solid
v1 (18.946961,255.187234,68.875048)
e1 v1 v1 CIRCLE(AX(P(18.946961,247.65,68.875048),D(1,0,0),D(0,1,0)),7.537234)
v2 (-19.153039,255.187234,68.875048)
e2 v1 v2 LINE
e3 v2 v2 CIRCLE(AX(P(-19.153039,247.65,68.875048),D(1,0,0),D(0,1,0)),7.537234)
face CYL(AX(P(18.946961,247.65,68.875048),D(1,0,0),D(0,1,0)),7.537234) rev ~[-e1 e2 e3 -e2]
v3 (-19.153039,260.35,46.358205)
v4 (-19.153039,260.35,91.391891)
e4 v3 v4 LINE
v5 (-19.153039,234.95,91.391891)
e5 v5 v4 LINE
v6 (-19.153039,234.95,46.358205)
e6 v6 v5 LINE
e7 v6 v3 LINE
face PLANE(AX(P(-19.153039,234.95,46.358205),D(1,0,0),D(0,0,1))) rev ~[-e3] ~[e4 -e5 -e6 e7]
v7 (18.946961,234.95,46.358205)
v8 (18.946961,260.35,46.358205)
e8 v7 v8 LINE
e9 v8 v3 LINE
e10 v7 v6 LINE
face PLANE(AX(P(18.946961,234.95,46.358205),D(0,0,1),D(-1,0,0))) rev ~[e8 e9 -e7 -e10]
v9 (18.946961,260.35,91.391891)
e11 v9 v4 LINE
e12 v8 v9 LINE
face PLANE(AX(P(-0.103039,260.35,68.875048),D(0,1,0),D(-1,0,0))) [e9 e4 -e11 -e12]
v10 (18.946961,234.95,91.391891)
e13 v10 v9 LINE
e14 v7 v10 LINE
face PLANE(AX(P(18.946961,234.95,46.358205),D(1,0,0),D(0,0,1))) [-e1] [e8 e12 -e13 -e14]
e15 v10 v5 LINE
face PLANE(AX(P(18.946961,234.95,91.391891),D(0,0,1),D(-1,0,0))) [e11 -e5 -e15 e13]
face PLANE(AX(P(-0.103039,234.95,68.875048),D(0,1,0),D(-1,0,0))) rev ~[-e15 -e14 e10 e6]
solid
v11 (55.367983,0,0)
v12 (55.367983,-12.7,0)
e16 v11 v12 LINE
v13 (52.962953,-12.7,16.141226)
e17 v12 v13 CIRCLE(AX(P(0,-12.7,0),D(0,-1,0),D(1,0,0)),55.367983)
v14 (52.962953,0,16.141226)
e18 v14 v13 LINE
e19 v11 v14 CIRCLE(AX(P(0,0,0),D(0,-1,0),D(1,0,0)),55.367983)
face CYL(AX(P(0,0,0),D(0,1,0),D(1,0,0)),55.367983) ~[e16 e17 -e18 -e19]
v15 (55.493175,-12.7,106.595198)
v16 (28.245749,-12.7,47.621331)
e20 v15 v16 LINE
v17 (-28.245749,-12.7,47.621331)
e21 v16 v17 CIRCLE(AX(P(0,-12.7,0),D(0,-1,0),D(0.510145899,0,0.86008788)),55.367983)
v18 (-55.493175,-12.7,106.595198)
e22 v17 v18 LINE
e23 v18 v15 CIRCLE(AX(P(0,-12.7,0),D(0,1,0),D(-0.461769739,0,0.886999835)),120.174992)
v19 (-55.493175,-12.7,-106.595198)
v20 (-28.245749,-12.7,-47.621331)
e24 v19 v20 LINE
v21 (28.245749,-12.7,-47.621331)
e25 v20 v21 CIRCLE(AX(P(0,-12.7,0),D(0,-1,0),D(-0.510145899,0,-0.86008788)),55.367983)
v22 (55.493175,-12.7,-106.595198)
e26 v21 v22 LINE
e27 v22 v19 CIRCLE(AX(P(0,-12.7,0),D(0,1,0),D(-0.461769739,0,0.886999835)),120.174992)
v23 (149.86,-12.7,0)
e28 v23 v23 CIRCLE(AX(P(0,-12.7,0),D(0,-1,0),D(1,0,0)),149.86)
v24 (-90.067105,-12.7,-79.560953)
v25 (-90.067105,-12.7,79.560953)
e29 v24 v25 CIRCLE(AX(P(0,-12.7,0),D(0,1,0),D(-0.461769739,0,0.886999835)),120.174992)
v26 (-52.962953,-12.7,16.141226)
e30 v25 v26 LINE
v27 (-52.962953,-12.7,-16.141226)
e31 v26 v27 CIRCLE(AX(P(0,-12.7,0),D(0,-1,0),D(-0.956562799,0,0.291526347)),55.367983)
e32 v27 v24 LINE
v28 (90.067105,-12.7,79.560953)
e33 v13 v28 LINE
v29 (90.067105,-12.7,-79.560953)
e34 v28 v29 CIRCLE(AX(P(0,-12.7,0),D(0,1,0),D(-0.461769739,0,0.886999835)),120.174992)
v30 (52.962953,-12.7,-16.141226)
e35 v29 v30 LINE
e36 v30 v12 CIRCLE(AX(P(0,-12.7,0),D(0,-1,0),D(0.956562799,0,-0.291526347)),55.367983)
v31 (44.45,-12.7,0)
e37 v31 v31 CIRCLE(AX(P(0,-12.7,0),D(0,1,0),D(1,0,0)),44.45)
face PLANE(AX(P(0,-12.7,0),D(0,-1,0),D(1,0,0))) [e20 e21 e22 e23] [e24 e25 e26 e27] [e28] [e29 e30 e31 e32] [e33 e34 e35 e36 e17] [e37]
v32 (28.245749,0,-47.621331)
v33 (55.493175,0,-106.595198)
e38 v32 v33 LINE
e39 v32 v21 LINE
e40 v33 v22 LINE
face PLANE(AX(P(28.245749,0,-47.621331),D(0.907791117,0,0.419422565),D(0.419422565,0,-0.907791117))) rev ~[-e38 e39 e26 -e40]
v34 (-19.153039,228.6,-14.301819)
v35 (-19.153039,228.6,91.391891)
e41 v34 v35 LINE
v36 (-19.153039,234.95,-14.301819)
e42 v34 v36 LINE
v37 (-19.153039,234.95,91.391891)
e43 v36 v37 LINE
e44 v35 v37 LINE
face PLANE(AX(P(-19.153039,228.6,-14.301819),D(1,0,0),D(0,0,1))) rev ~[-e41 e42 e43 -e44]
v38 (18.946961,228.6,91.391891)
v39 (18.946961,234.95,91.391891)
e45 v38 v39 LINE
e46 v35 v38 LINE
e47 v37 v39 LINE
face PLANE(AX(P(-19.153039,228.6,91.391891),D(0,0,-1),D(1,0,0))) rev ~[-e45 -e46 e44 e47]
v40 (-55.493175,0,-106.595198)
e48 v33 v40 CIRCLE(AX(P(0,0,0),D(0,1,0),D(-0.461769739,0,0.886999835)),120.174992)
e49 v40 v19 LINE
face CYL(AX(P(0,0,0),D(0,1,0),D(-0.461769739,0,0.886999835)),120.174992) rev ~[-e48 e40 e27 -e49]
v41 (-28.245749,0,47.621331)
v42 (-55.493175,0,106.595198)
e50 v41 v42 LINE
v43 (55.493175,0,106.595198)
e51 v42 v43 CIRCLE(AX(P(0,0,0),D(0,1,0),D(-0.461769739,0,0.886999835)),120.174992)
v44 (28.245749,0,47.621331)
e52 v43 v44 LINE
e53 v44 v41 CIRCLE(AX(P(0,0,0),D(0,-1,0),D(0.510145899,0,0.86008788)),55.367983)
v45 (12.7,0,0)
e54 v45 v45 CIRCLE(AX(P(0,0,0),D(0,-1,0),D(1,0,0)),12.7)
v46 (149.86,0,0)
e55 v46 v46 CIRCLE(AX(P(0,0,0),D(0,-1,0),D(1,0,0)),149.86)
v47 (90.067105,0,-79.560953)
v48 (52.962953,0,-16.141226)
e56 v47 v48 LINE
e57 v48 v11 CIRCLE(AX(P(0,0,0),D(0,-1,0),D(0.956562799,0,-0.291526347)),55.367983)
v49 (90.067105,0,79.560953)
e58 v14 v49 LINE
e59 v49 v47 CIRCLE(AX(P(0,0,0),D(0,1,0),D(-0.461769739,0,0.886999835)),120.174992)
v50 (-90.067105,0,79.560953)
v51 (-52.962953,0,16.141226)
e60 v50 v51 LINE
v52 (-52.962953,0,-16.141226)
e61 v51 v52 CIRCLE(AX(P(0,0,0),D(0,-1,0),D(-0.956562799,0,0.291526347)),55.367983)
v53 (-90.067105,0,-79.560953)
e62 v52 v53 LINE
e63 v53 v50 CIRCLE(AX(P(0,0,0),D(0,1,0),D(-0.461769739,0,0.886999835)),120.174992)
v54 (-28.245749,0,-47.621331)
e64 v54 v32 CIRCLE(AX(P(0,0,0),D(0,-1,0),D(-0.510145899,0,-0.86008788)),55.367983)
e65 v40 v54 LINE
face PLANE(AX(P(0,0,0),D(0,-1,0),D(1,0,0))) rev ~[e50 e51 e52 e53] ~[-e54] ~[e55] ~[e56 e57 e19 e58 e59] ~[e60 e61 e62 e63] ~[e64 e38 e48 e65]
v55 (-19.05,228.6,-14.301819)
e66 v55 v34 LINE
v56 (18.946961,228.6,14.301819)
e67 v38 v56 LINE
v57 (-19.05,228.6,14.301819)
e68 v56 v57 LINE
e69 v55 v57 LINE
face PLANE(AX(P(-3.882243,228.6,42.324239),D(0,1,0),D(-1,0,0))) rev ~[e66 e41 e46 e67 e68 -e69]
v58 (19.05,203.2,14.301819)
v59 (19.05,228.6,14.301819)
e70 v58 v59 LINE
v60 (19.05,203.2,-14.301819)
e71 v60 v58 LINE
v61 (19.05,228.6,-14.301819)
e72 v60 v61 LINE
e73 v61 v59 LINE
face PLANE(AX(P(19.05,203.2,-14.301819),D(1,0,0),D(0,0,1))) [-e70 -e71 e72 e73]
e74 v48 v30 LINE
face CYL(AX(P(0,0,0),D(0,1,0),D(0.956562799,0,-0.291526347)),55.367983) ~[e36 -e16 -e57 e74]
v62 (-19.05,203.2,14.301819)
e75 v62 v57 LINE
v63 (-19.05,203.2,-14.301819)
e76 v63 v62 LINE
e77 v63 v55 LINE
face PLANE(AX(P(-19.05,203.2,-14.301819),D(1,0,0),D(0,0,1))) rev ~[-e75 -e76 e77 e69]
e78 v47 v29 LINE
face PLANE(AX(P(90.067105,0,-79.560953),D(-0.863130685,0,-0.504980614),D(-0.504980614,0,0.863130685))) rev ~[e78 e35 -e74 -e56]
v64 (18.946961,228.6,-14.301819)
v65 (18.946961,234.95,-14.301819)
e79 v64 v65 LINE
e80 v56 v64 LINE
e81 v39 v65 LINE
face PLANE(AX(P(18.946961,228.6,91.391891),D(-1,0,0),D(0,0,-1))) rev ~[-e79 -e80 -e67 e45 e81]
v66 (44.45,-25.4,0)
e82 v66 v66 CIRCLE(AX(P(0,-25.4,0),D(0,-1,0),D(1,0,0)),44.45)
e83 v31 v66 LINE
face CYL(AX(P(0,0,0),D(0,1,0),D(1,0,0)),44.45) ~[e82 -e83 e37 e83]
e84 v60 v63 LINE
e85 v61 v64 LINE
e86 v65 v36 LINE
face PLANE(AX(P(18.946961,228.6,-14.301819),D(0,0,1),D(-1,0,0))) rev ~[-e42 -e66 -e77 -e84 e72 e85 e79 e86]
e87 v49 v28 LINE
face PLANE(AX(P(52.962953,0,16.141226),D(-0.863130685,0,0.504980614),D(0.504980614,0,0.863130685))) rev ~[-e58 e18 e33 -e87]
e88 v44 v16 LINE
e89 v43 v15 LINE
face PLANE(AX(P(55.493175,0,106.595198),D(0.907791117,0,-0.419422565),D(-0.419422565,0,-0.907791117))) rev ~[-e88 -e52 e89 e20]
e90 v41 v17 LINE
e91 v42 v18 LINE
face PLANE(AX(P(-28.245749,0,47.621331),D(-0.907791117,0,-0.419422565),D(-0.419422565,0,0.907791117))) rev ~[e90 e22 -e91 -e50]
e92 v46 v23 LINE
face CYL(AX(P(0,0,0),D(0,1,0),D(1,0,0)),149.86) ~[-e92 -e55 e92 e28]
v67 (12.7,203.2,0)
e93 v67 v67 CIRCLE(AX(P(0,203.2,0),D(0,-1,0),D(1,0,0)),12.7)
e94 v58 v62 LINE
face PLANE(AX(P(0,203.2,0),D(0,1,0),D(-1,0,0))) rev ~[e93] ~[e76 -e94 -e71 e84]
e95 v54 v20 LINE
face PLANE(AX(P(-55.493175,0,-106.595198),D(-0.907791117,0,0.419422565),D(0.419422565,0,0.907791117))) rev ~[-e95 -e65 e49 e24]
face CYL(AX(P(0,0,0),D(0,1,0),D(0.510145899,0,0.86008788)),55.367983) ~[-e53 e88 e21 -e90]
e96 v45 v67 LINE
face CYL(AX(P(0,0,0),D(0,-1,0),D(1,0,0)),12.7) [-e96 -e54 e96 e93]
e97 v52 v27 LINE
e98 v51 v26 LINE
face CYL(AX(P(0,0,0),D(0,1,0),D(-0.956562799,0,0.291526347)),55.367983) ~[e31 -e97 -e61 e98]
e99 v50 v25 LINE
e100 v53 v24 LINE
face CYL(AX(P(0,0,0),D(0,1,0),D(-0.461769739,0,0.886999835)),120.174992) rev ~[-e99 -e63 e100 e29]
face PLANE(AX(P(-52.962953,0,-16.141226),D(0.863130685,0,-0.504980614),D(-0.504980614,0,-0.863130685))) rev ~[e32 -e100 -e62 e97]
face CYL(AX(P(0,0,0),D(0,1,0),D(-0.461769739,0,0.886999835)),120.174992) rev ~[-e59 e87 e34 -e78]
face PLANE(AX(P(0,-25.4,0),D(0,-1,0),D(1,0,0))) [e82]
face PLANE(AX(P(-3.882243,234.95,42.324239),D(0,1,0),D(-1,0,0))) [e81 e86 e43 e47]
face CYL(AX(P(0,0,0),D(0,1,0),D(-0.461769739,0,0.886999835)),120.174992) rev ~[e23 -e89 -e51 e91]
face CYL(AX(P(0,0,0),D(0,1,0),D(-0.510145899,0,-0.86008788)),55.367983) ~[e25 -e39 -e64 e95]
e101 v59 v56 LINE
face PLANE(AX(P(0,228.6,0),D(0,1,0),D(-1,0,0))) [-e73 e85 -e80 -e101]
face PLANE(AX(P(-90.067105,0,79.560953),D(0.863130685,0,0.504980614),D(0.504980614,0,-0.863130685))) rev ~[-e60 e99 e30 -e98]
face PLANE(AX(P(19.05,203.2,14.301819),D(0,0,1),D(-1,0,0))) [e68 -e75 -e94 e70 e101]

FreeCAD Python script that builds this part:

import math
import FreeCAD as App
import Part
import Sketcher
Q = App.Units.Quantity


def add_polygon(sketch, points):
    """Adds a closed chain of lines whose ends are joined by coincident constraints."""
    first, n = sketch.GeometryCount, len(points)
    for a, b in zip(points, points[1:] + points[:1]):
        sketch.addGeometry(Part.LineSegment(App.Vector(*a, 0), App.Vector(*b, 0)), False)
    for i in range(n):
        sketch.addConstraint(Sketcher.Constraint("Coincident", first + i, 2, first + (i + 1) % n, 1))

doc = App.newDocument("Part")
params = doc.addObject("Spreadsheet::Sheet", "Params")
for row, (alias, value) in enumerate([
    ("sketch1_diameter", "11.8 in"),
    ("pad1_length", "0.5 in"),
    ("sketch2_diameter", "3.5 in"),
    ("pad2_length", "1 in"),
    ("sketch3_diameter", "1 in"),
    ("pad3_length", "8 in"),
    ("sketch4_width", "1.5 in"),
    ("pad4_length", "1 in"),
    ("sketch5_width", "1.5 in"),
    ("pad5_length", "0.25 in"),
    ("sketch6_width", "1.5 in"),
    ("pad6_length", "1 in"),
    ("pocket1_length", "1.74 in"),
], start=1):
    params.set(f"A{row}", alias)
    params.set(f"B{row}", "=" + value)
    params.setAlias(f"B{row}", alias)

body = doc.addObject("PartDesign::Body", "Body")

# Sketch on XZ plane
sketch1 = doc.addObject("Sketcher::SketchObject", "Sketch")
body.addObject(sketch1)
sketch1.AttachmentSupport = (doc.XZ_Plane, [""])
sketch1.MapMode = "FlatFace"
sketch1.addGeometry(Part.Circle(App.Vector(0, 0, 0), App.Vector(0, 0, 1), 149.86), False)
sketch1.addGeometry(Part.LineSegment(App.Vector(-90.067105, 79.560953, 0), App.Vector(-52.962953, 16.141226, 0)), False)
sketch1.addGeometry(Part.ArcOfCircle(Part.Circle(App.Vector(0, 0, 0), App.Vector(0, 0, 1), 55.367983), math.radians(163.050642), math.radians(196.949358)), False)
sketch1.addGeometry(Part.LineSegment(App.Vector(-52.962953, -16.141226, 0), App.Vector(-90.067105, -79.560953, 0)), False)
sketch1.addGeometry(Part.ArcOfCircle(Part.Circle(App.Vector(0, 0, 0), App.Vector(0, 0, 1), 120.174992), math.radians(138.544167), math.radians(221.455833)), False)
sketch1.addGeometry(Part.ArcOfCircle(Part.Circle(App.Vector(0, 0, 0), App.Vector(0, 0, 1), 55.367983), math.radians(-120.673549), math.radians(-59.326451)), False)
sketch1.addGeometry(Part.LineSegment(App.Vector(28.245749, -47.621331, 0), App.Vector(55.493175, -106.595198, 0)), False)
sketch1.addGeometry(Part.ArcOfCircle(Part.Circle(App.Vector(0, 0, 0), App.Vector(0, 0, 1), 120.174992), math.radians(-117.501365), math.radians(-62.498635)), False)
sketch1.addGeometry(Part.LineSegment(App.Vector(-55.493175, -106.595198, 0), App.Vector(-28.245749, -47.621331, 0)), False)
sketch1.addGeometry(Part.ArcOfCircle(Part.Circle(App.Vector(0, 0, 0), App.Vector(0, 0, 1), 55.367983), math.radians(-16.949358), math.radians(0)), False)
sketch1.addGeometry(Part.ArcOfCircle(Part.Circle(App.Vector(0, 0, 0), App.Vector(0, 0, 1), 55.367983), math.radians(0), math.radians(16.949358)), False)
sketch1.addGeometry(Part.LineSegment(App.Vector(52.962953, 16.141226, 0), App.Vector(90.067105, 79.560953, 0)), False)
sketch1.addGeometry(Part.ArcOfCircle(Part.Circle(App.Vector(0, 0, 0), App.Vector(0, 0, 1), 120.174992), math.radians(-41.455833), math.radians(41.455833)), False)
sketch1.addGeometry(Part.LineSegment(App.Vector(90.067105, -79.560953, 0), App.Vector(52.962953, -16.141226, 0)), False)
sketch1.addGeometry(Part.ArcOfCircle(Part.Circle(App.Vector(0, 0, 0), App.Vector(0, 0, 1), 55.367983), math.radians(59.326451), math.radians(120.673549)), False)
sketch1.addGeometry(Part.LineSegment(App.Vector(-28.245749, 47.621331, 0), App.Vector(-55.493175, 106.595198, 0)), False)
sketch1.addGeometry(Part.ArcOfCircle(Part.Circle(App.Vector(0, 0, 0), App.Vector(0, 0, 1), 120.174992), math.radians(62.498635), math.radians(117.501365)), False)
sketch1.addGeometry(Part.LineSegment(App.Vector(55.493175, 106.595198, 0), App.Vector(28.245749, 47.621331, 0)), False)
sketch1.addGeometry(Part.Circle(App.Vector(0, 0, 0), App.Vector(0, 0, 1), 26.648737), False)
sketch1.addConstraint(Sketcher.Constraint("Coincident", 1, 2, 2, 1))
sketch1.addConstraint(Sketcher.Constraint("Coincident", 2, 2, 3, 1))
sketch1.addConstraint(Sketcher.Constraint("Coincident", 3, 2, 4, 2))
sketch1.addConstraint(Sketcher.Constraint("Coincident", 4, 1, 1, 1))
sketch1.addConstraint(Sketcher.Constraint("Coincident", 5, 2, 6, 1))
sketch1.addConstraint(Sketcher.Constraint("Coincident", 6, 2, 7, 2))
sketch1.addConstraint(Sketcher.Constraint("Coincident", 7, 1, 8, 1))
sketch1.addConstraint(Sketcher.Constraint("Coincident", 8, 2, 5, 1))
sketch1.addConstraint(Sketcher.Constraint("Tangent", 9, 2, 10, 1))
sketch1.addConstraint(Sketcher.Constraint("Coincident", 10, 2, 11, 1))
sketch1.addConstraint(Sketcher.Constraint("Coincident", 11, 2, 12, 2))
sketch1.addConstraint(Sketcher.Constraint("Coincident", 12, 1, 13, 1))
sketch1.addConstraint(Sketcher.Constraint("Coincident", 13, 2, 9, 1))
sketch1.addConstraint(Sketcher.Constraint("Coincident", 14, 2, 15, 1))
sketch1.addConstraint(Sketcher.Constraint("Coincident", 15, 2, 16, 2))
sketch1.addConstraint(Sketcher.Constraint("Coincident", 16, 1, 17, 1))
sketch1.addConstraint(Sketcher.Constraint("Coincident", 17, 2, 14, 1))
sketch1.addConstraint(Sketcher.Constraint("Coincident", 0, 3, -1, 1))
sketch1.addConstraint(Sketcher.Constraint("Coincident", 2, 3, -1, 1))
sketch1.addConstraint(Sketcher.Constraint("Coincident", 4, 3, -1, 1))
sketch1.addConstraint(Sketcher.Constraint("Coincident", 5, 3, -1, 1))
sketch1.addConstraint(Sketcher.Constraint("Coincident", 7, 3, -1, 1))
sketch1.addConstraint(Sketcher.Constraint("Coincident", 9, 3, -1, 1))
sketch1.addConstraint(Sketcher.Constraint("Coincident", 12, 3, -1, 1))
sketch1.addConstraint(Sketcher.Constraint("Coincident", 14, 3, -1, 1))
sketch1.addConstraint(Sketcher.Constraint("Coincident", 16, 3, -1, 1))
sketch1.addConstraint(Sketcher.Constraint("Coincident", 18, 3, -1, 1))
sketch1.addConstraint(Sketcher.Constraint("Equal", 2, 5))
sketch1.addConstraint(Sketcher.Constraint("Equal", 4, 7))
sketch1.addConstraint(Sketcher.Constraint("Equal", 5, 9))
sketch1.addConstraint(Sketcher.Constraint("Equal", 9, 10))
sketch1.addConstraint(Sketcher.Constraint("Equal", 7, 12))
sketch1.addConstraint(Sketcher.Constraint("Equal", 10, 14))
sketch1.addConstraint(Sketcher.Constraint("Equal", 12, 16))
sketch1.addConstraint(Sketcher.Constraint("PointOnObject", 9, 2, -1))
sketch1.addConstraint(Sketcher.Constraint("Parallel", 3, 11))
sketch1.addConstraint(Sketcher.Constraint("Parallel", 1, 13))
sketch1.addConstraint(Sketcher.Constraint("Parallel", 6, 15))
sketch1.addConstraint(Sketcher.Constraint("Parallel", 8, 17))
sketch1.addConstraint(Sketcher.Constraint("Horizontal", 6, 2, 7, 1))
sketch1.addConstraint(Sketcher.Constraint("Horizontal", 5, 2, 8, 2))
sketch1.addConstraint(Sketcher.Constraint("Horizontal", 1, 2, 10, 2))
sketch1.addConstraint(Sketcher.Constraint("Horizontal", 4, 1, 11, 2))
sketch1.addConstraint(Sketcher.Constraint("Horizontal", 3, 2, 12, 1))
sketch1.addConstraint(Sketcher.Constraint("Horizontal", 15, 2, 16, 1))
sketch1.addConstraint(Sketcher.Constraint("Vertical", 1, 2, 2, 2))
sketch1.addConstraint(Sketcher.Constraint("Vertical", 8, 2, 14, 2))
sketch1.addConstraint(Sketcher.Constraint("Diameter", 0, Q("11.8 in")))
sketch1.addConstraint(Sketcher.Constraint("Radius", 4, 120.174992))
sketch1.addConstraint(Sketcher.Constraint("Diameter", 18, 53.297473))
sketch1.addConstraint(Sketcher.Constraint("Radius", 2, 55.367983))
sketch1.addConstraint(Sketcher.Constraint("Distance", 1, 73.47639))
sketch1.addConstraint(Sketcher.Constraint("DistanceX", -1, 1, 5, 2, 28.245749))
sketch1.addConstraint(Sketcher.Constraint("DistanceY", 2, 2, 1, 2, 32.282452))
sketch1.addConstraint(Sketcher.Constraint("DistanceX", 3, 2, 7, 1, 34.573931))
sketch1.setExpression("Constraints[47]", "Params.sketch1_diameter")
pad1 = doc.addObject("PartDesign::Pad", "Pad")
body.addObject(pad1)
pad1.Profile = sketch1
pad1.setExpression("Length", "Params.pad1_length")

# Sketch on XZ plane
sketch2 = doc.addObject("Sketcher::SketchObject", "Sketch001")
body.addObject(sketch2)
sketch2.AttachmentSupport = (doc.XZ_Plane, [""])
sketch2.MapMode = "FlatFace"
sketch2.addGeometry(Part.Circle(App.Vector(0, 0, 0), App.Vector(0, 0, 1), 44.45), False)
sketch2.addConstraint(Sketcher.Constraint("Coincident", 0, 3, -1, 1))
sketch2.addConstraint(Sketcher.Constraint("Diameter", 0, Q("3.5 in")))
sketch2.setExpression("Constraints[1]", "Params.sketch2_diameter")
pad2 = doc.addObject("PartDesign::Pad", "Pad001")
body.addObject(pad2)
pad2.Profile = sketch2
pad2.setExpression("Length", "Params.pad2_length")

# Sketch on XZ plane
sketch3 = doc.addObject("Sketcher::SketchObject", "Sketch002")
body.addObject(sketch3)
sketch3.AttachmentSupport = (doc.XZ_Plane, [""])
sketch3.MapMode = "FlatFace"
sketch3.addGeometry(Part.Circle(App.Vector(0, 0, 0), App.Vector(0, 0, 1), 12.7), False)
sketch3.addConstraint(Sketcher.Constraint("Coincident", 0, 3, -1, 1))
sketch3.addConstraint(Sketcher.Constraint("Diameter", 0, Q("1 in")))
sketch3.setExpression("Constraints[1]", "Params.sketch3_diameter")
pad3 = doc.addObject("PartDesign::Pad", "Pad002")
body.addObject(pad3)
pad3.Profile = sketch3
pad3.setExpression("Length", "Params.pad3_length")
pad3.Reversed = True

# Sketch on XZ plane
sketch4 = doc.addObject("Sketcher::SketchObject", "Sketch003")
body.addObject(sketch4)
sketch4.AttachmentSupport = (doc.XZ_Plane, [""])
sketch4.MapMode = "FlatFace"
sketch4.AttachmentOffset = App.Placement(App.Vector(0, 0, -8 * 25.4), App.Rotation())
add_polygon(sketch4, [(19.05, 14.301819), (19.05, -14.301819), (-19.05, -14.301819), (-19.05, 14.301819)])  # lines 0-3
sketch4.addConstraint(Sketcher.Constraint("Vertical", 0))
sketch4.addConstraint(Sketcher.Constraint("Horizontal", 1))
sketch4.addConstraint(Sketcher.Constraint("Vertical", 2))
sketch4.addConstraint(Sketcher.Constraint("Horizontal", 3))
sketch4.addConstraint(Sketcher.Constraint("Symmetric", 0, 2, 2, 2, -1, 1))
sketch4.addConstraint(Sketcher.Constraint("DistanceX", 1, 2, 1, 1, Q("1.5 in")))
sketch4.addConstraint(Sketcher.Constraint("DistanceY", 0, 2, 0, 1, 28.603639))
sketch4.setExpression("Constraints[9]", "Params.sketch4_width")
pad4 = doc.addObject("PartDesign::Pad", "Pad003")
body.addObject(pad4)
pad4.Profile = sketch4
pad4.setExpression("Length", "Params.pad4_length")
pad4.Reversed = True

# Sketch on XZ plane
sketch5 = doc.addObject("Sketcher::SketchObject", "Sketch004")
body.addObject(sketch5)
sketch5.AttachmentSupport = (doc.XZ_Plane, [""])
sketch5.MapMode = "FlatFace"
sketch5.AttachmentOffset = App.Placement(App.Vector(0, 0, -9 * 25.4), App.Rotation())
add_polygon(sketch5, [(-19.153039, -14.301819), (-19.153039, 91.391891), (18.946961, 91.391891), (18.946961, -14.301819)])  # lines 0-3
sketch5.addConstraint(Sketcher.Constraint("Vertical", 0))
sketch5.addConstraint(Sketcher.Constraint("Horizontal", 1))
sketch5.addConstraint(Sketcher.Constraint("Vertical", 2))
sketch5.addConstraint(Sketcher.Constraint("Horizontal", 3))
sketch5.addConstraint(Sketcher.Constraint("DistanceX", 1, 1, 1, 2, Q("1.5 in")))
sketch5.addConstraint(Sketcher.Constraint("DistanceY", 0, 1, 0, 2, 105.693711))
sketch5.addConstraint(Sketcher.Constraint("DistanceX", 0, 2, -1, 1, 19.153039))
sketch5.addConstraint(Sketcher.Constraint("DistanceY", -1, 1, 0, 2, 91.391891))
sketch5.setExpression("Constraints[8]", "Params.sketch5_width")
pad5 = doc.addObject("PartDesign::Pad", "Pad004")
body.addObject(pad5)
pad5.Profile = sketch5
pad5.setExpression("Length", "Params.pad5_length")
pad5.Reversed = True
body2 = doc.addObject("PartDesign::Body", "Body001")

# Sketch on XZ plane
sketch6 = doc.addObject("Sketcher::SketchObject", "Sketch005")
body2.addObject(sketch6)
sketch6.AttachmentSupport = (doc.getObject("XZ_Plane001"), [""])
sketch6.MapMode = "FlatFace"
sketch6.AttachmentOffset = App.Placement(App.Vector(0, 0, -9.25 * 25.4), App.Rotation())
add_polygon(sketch6, [(18.946961, 91.391891), (18.946961, 46.358205), (-19.153039, 46.358205), (-19.153039, 91.391891)])  # lines 0-3
sketch6.addConstraint(Sketcher.Constraint("Vertical", 0))
sketch6.addConstraint(Sketcher.Constraint("Horizontal", 1))
sketch6.addConstraint(Sketcher.Constraint("Vertical", 2))
sketch6.addConstraint(Sketcher.Constraint("Horizontal", 3))
sketch6.addConstraint(Sketcher.Constraint("DistanceX", 1, 2, 1, 1, Q("1.5 in")))
sketch6.addConstraint(Sketcher.Constraint("DistanceY", 0, 2, 0, 1, 45.033686))
sketch6.addConstraint(Sketcher.Constraint("DistanceX", -1, 1, 0, 2, 18.946961))
sketch6.addConstraint(Sketcher.Constraint("DistanceY", -1, 1, 2, 2, 91.391891))
sketch6.setExpression("Constraints[8]", "Params.sketch6_width")
pad6 = doc.addObject("PartDesign::Pad", "Pad005")
body2.addObject(pad6)
pad6.Profile = sketch6
pad6.setExpression("Length", "Params.pad6_length")
pad6.Reversed = True

# Sketch on YZ plane
sketch7 = doc.addObject("Sketcher::SketchObject", "Sketch006")
body2.addObject(sketch7)
sketch7.AttachmentSupport = (doc.getObject("YZ_Plane001"), [""])
sketch7.MapMode = "FlatFace"
sketch7.AttachmentOffset = App.Placement(App.Vector(0, 0, 18.946961), App.Rotation())
sketch7.addGeometry(Part.Circle(App.Vector(247.65, 68.875048, 0), App.Vector(0, 0, 1), 7.537234), False)
sketch7.addConstraint(Sketcher.Constraint("DistanceX", -1, 1, 0, 3, Q("9.75 in")))
sketch7.addConstraint(Sketcher.Constraint("Diameter", 0, 15.074469))
sketch7.addConstraint(Sketcher.Constraint("DistanceY", -1, 1, 0, 3, 68.875048))
pocket1 = doc.addObject("PartDesign::Pocket", "Pocket")
body2.addObject(pocket1)
pocket1.Profile = sketch7
pocket1.setExpression("Length", "Params.pocket1_length")

doc.recompute()
